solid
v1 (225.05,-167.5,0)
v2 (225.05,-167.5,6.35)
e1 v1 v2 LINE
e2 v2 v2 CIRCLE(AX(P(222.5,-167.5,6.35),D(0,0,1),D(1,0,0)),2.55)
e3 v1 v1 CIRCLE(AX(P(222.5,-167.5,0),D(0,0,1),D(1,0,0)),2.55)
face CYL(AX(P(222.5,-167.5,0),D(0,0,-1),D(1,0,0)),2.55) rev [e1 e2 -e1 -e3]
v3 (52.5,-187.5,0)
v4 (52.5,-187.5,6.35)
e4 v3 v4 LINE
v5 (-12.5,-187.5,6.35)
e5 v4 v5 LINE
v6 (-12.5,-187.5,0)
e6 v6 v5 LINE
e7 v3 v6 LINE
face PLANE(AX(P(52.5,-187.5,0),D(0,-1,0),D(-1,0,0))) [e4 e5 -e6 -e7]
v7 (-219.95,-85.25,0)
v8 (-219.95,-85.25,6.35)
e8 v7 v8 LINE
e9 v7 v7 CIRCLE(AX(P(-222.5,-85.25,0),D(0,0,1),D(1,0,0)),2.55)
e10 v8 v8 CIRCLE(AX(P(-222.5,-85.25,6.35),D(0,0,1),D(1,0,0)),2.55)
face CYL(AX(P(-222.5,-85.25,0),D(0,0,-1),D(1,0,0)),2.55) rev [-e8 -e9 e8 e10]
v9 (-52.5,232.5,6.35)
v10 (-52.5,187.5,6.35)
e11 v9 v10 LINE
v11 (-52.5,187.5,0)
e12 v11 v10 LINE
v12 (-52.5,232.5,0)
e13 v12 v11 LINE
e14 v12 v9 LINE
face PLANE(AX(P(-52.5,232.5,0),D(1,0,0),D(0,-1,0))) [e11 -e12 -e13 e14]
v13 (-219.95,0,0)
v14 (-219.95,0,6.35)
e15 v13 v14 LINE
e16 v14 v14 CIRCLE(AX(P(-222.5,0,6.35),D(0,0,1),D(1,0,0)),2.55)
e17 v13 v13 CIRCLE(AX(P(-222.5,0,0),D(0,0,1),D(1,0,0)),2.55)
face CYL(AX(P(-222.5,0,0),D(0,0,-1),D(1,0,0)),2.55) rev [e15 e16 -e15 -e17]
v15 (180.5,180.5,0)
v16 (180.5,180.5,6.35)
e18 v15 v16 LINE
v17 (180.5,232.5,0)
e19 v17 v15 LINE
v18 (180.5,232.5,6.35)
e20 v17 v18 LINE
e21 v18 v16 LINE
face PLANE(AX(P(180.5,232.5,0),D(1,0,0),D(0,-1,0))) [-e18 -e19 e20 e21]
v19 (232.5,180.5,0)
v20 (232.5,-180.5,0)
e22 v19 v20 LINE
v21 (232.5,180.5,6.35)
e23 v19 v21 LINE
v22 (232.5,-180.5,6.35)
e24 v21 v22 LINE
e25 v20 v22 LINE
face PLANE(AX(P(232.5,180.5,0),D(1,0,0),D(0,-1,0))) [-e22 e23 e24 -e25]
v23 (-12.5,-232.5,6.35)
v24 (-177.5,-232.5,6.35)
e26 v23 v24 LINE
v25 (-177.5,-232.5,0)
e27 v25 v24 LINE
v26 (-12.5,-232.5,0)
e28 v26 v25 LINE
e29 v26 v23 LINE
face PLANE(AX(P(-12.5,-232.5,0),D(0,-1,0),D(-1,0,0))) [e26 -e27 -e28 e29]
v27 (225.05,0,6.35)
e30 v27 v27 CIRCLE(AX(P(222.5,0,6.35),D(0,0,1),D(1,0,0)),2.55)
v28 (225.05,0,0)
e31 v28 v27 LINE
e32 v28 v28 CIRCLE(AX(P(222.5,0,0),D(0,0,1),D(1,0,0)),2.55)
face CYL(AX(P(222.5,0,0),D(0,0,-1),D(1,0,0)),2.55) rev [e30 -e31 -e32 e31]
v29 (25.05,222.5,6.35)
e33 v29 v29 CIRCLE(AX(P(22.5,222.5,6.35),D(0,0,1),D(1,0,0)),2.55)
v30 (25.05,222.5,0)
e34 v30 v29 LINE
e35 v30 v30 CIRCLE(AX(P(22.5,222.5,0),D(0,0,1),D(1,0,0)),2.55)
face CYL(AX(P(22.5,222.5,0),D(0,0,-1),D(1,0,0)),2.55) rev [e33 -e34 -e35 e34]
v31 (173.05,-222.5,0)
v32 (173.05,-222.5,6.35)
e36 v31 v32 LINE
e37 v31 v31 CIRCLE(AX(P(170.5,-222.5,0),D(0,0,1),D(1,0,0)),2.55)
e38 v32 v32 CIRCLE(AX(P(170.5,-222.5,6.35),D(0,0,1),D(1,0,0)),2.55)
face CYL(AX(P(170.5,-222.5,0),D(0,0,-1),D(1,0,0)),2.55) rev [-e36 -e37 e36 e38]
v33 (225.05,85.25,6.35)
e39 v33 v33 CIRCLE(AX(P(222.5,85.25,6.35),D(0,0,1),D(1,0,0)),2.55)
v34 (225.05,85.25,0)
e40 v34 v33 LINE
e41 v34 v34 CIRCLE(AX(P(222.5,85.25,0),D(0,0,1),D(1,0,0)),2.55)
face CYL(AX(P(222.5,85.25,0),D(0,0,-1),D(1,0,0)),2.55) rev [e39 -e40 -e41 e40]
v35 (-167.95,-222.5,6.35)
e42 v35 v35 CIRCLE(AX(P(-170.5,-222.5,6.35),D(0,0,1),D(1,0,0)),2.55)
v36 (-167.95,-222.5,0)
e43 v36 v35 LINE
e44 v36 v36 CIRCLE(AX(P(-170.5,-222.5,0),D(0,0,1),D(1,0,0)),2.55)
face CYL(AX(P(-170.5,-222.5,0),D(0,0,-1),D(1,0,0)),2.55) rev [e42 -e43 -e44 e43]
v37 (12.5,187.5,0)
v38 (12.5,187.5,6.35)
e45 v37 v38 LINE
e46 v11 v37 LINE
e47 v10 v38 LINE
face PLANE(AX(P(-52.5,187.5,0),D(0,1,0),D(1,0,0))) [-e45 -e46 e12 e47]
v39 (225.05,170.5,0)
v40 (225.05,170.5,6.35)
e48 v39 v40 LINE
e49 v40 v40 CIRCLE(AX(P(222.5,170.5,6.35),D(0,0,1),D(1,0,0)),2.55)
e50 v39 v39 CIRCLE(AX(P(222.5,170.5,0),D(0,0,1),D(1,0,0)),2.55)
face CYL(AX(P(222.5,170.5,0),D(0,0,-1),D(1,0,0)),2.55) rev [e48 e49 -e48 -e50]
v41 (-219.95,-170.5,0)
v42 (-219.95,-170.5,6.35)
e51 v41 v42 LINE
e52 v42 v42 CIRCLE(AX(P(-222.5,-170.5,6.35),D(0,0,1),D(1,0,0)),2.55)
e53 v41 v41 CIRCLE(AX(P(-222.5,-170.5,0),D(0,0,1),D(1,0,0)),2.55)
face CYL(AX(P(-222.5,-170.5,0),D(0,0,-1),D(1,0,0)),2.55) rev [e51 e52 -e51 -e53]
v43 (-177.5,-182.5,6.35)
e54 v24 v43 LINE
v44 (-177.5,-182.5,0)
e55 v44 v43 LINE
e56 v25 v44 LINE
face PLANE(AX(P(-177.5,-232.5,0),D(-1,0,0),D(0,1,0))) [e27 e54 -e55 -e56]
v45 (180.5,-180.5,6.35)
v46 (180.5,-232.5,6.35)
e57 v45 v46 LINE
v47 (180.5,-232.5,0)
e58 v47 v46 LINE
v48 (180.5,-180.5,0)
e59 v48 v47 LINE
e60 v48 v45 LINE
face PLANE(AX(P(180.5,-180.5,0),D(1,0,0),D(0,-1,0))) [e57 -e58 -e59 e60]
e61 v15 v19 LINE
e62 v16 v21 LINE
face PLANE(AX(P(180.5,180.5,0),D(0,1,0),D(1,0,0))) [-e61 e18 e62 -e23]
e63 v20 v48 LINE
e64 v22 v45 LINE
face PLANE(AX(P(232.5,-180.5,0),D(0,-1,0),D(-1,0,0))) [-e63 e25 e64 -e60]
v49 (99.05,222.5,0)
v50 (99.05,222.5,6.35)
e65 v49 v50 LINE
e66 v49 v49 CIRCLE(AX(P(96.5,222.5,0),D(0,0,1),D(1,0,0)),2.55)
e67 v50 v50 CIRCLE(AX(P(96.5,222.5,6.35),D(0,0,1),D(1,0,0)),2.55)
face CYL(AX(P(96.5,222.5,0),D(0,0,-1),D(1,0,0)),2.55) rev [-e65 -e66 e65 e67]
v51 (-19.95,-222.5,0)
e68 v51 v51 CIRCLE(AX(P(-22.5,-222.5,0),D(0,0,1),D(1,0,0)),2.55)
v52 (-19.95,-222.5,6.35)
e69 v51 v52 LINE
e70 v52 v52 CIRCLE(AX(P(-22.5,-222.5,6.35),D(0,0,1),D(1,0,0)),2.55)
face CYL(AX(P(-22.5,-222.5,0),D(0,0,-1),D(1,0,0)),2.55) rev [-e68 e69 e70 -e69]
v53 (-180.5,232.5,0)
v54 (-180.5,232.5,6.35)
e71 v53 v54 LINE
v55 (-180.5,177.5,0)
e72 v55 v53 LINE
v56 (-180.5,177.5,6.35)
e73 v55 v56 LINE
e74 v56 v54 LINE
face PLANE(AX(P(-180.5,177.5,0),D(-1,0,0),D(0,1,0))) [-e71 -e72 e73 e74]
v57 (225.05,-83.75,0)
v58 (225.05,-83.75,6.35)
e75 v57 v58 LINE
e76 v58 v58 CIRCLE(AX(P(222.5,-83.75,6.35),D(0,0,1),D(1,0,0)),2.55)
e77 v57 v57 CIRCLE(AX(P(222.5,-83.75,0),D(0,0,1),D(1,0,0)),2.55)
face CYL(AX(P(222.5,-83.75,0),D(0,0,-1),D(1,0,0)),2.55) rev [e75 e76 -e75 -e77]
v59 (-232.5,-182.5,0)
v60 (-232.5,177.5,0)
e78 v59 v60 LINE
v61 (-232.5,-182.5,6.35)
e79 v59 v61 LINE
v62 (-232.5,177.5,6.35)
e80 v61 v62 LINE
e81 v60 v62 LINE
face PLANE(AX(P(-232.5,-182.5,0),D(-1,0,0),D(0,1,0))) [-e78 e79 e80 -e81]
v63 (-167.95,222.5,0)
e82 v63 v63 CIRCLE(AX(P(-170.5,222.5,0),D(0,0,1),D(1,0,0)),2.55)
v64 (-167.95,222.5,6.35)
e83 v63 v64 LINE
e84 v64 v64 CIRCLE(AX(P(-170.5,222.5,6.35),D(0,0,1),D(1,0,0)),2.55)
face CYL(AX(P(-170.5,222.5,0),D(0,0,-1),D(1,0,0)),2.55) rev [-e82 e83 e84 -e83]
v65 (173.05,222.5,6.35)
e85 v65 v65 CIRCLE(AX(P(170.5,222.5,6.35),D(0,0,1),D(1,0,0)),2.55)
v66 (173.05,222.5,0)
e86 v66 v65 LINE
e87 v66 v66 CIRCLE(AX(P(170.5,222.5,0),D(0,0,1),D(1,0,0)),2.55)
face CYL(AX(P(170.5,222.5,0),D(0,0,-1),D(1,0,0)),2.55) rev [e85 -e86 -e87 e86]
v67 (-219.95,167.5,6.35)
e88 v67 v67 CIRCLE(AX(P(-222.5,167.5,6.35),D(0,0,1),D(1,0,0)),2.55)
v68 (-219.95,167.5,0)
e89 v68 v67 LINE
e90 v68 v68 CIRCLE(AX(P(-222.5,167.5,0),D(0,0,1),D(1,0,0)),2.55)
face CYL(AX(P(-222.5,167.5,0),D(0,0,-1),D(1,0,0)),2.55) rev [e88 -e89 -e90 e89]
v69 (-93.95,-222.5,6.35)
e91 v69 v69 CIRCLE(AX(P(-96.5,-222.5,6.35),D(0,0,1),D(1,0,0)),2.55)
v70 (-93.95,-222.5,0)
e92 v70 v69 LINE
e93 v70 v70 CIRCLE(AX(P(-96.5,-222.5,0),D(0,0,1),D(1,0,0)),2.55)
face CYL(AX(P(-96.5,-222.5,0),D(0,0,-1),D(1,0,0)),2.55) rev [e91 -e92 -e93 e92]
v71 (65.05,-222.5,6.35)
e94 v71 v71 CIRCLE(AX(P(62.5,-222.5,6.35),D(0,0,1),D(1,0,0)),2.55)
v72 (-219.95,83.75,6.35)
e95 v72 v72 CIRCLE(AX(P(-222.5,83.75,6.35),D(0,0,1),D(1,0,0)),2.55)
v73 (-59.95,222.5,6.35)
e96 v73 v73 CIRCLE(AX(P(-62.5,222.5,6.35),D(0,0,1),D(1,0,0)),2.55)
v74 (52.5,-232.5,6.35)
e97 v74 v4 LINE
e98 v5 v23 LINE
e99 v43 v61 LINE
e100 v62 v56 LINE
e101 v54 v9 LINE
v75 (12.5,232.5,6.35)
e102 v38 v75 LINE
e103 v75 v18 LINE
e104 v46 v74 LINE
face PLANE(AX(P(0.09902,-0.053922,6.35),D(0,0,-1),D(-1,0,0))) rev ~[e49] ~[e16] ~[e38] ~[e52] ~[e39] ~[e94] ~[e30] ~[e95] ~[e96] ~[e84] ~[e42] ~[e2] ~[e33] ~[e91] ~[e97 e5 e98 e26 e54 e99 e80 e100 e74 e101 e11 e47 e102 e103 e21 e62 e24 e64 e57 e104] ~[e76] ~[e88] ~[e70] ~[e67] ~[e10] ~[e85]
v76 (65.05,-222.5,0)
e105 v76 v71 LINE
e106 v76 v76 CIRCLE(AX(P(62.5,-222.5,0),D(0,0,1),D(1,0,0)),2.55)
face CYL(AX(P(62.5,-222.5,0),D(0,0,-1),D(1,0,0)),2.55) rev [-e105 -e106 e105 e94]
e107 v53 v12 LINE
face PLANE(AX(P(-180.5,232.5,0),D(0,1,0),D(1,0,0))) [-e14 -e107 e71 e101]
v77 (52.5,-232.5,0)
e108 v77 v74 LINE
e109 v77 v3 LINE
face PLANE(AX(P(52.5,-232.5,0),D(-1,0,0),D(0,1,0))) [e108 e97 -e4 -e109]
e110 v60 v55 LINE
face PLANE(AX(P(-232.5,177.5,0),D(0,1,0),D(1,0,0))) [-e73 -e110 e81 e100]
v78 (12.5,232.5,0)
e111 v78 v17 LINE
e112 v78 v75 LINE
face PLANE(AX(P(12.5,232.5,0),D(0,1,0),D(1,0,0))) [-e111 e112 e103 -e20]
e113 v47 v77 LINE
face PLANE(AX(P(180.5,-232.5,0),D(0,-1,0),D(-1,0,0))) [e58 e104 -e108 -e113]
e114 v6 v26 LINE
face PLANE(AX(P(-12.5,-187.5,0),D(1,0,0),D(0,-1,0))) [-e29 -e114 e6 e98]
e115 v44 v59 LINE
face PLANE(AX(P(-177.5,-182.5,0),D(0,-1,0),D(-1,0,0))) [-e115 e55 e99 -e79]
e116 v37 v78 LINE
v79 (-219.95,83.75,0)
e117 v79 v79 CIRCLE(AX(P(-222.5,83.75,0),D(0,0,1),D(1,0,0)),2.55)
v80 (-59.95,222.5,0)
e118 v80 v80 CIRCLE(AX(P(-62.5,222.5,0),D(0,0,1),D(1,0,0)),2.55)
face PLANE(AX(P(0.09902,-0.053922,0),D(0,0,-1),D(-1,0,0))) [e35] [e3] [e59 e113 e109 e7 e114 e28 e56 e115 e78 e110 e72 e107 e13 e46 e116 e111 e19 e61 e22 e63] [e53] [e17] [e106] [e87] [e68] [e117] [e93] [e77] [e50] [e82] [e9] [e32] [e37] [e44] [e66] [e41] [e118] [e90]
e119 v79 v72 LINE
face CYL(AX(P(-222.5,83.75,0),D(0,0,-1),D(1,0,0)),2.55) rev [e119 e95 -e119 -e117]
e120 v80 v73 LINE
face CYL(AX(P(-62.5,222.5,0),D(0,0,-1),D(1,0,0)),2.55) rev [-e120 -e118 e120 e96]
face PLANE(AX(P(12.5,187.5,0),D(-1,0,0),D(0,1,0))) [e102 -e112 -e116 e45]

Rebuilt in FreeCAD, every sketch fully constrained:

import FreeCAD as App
import Part
import Sketcher

V = App.Vector

doc = App.newDocument("Part")
body = doc.addObject("PartDesign::Body", "Body")

sketch1 = doc.addObject("Sketcher::SketchObject", "Sketch")
body.addObject(sketch1)
sketch1.AttachmentSupport = (doc.XY_Plane, [""])
sketch1.MapMode = "FlatFace"
sketch1.addGeometry(Part.LineSegment(V(180.5, 232.5, 0), V(12.5, 232.5, 0)), False)
sketch1.addGeometry(Part.LineSegment(V(12.5, 232.5, 0), V(12.5, 187.5, 0)), False)
sketch1.addGeometry(Part.LineSegment(V(12.5, 187.5, 0), V(-52.5, 187.5, 0)), False)
sketch1.addGeometry(Part.LineSegment(V(-52.5, 187.5, 0), V(-52.5, 232.5, 0)), False)
sketch1.addGeometry(Part.LineSegment(V(-52.5, 232.5, 0), V(-180.5, 232.5, 0)), False)
sketch1.addGeometry(Part.LineSegment(V(-180.5, 232.5, 0), V(-180.5, 177.5, 0)), False)
sketch1.addGeometry(Part.LineSegment(V(-180.5, 177.5, 0), V(-232.5, 177.5, 0)), False)
sketch1.addGeometry(Part.LineSegment(V(-232.5, 177.5, 0), V(-232.5, -182.5, 0)), False)
sketch1.addGeometry(Part.LineSegment(V(-232.5, -182.5, 0), V(-177.5, -182.5, 0)), False)
sketch1.addGeometry(Part.LineSegment(V(-177.5, -182.5, 0), V(-177.5, -232.5, 0)), False)
sketch1.addGeometry(Part.LineSegment(V(-177.5, -232.5, 0), V(-12.5, -232.5, 0)), False)
sketch1.addGeometry(Part.LineSegment(V(-12.5, -232.5, 0), V(-12.5, -187.5, 0)), False)
sketch1.addGeometry(Part.LineSegment(V(-12.5, -187.5, 0), V(52.5, -187.5, 0)), False)
sketch1.addGeometry(Part.LineSegment(V(52.5, -187.5, 0), V(52.5, -232.5, 0)), False)
sketch1.addGeometry(Part.LineSegment(V(52.5, -232.5, 0), V(180.5, -232.5, 0)), False)
sketch1.addGeometry(Part.LineSegment(V(180.5, -232.5, 0), V(180.5, -180.5, 0)), False)
sketch1.addGeometry(Part.LineSegment(V(180.5, -180.5, 0), V(232.5, -180.5, 0)), False)
sketch1.addGeometry(Part.LineSegment(V(232.5, -180.5, 0), V(232.5, 180.5, 0)), False)
sketch1.addGeometry(Part.LineSegment(V(232.5, 180.5, 0), V(180.5, 180.5, 0)), False)
sketch1.addGeometry(Part.LineSegment(V(180.5, 180.5, 0), V(180.5, 232.5, 0)), False)
sketch1.addGeometry(Part.Circle(V(170.5, -222.5, 0), V(0, 0, 1), 2.5), False)
sketch1.addGeometry(Part.Circle(V(222.5, -167.5, 0), V(0, 0, 1), 2.5), False)
sketch1.addGeometry(Part.Circle(V(62.5, -222.5, 0), V(0, 0, 1), 2.5), False)
sketch1.addGeometry(Part.Circle(V(222.5, -83.8, 0), V(0, 0, 1), 2.5), False)
sketch1.addGeometry(Part.Circle(V(-22.5, -222.5, 0), V(0, 0, 1), 2.5), False)
sketch1.addGeometry(Part.Circle(V(-96.5, -222.5, 0), V(0, 0, 1), 2.5), False)
sketch1.addGeometry(Part.Circle(V(-170.5, -222.5, 0), V(0, 0, 1), 2.5), False)
sketch1.addGeometry(Part.Circle(V(-222.5, -170.5, 0), V(0, 0, 1), 2.5), False)
sketch1.addGeometry(Part.Circle(V(-222.5, -85.2, 0), V(0, 0, 1), 2.5), False)
sketch1.addGeometry(Part.Circle(V(222.5, 0, 0), V(0, 0, 1), 2.5), False)
sketch1.addGeometry(Part.Circle(V(222.5, 85.2, 0), V(0, 0, 1), 2.5), False)
sketch1.addGeometry(Part.Circle(V(222.5, 170.5, 0), V(0, 0, 1), 2.5), False)
sketch1.addGeometry(Part.Circle(V(170.5, 222.5, 0), V(0, 0, 1), 2.5), False)
sketch1.addGeometry(Part.Circle(V(96.5, 222.5, 0), V(0, 0, 1), 2.5), False)
sketch1.addGeometry(Part.Circle(V(22.5, 222.5, 0), V(0, 0, 1), 2.5), False)
sketch1.addGeometry(Part.Circle(V(-222.5, 0, 0), V(0, 0, 1), 2.5), False)
sketch1.addGeometry(Part.Circle(V(-222.5, 83.8, 0), V(0, 0, 1), 2.5), False)
sketch1.addGeometry(Part.Circle(V(-62.5, 222.5, 0), V(0, 0, 1), 2.5), False)
sketch1.addGeometry(Part.Circle(V(-222.5, 167.5, 0), V(0, 0, 1), 2.5), False)
sketch1.addGeometry(Part.Circle(V(-170.5, 222.5, 0), V(0, 0, 1), 2.5), False)
sketch1.addConstraint(Sketcher.Constraint("Coincident", 0, 2, 1, 1))
sketch1.addConstraint(Sketcher.Constraint("Coincident", 1, 2, 2, 1))
sketch1.addConstraint(Sketcher.Constraint("Coincident", 2, 2, 3, 1))
sketch1.addConstraint(Sketcher.Constraint("Coincident", 3, 2, 4, 1))
sketch1.addConstraint(Sketcher.Constraint("Coincident", 4, 2, 5, 1))
sketch1.addConstraint(Sketcher.Constraint("Coincident", 5, 2, 6, 1))
sketch1.addConstraint(Sketcher.Constraint("Coincident", 6, 2, 7, 1))
sketch1.addConstraint(Sketcher.Constraint("Coincident", 7, 2, 8, 1))
sketch1.addConstraint(Sketcher.Constraint("Coincident", 8, 2, 9, 1))
sketch1.addConstraint(Sketcher.Constraint("Coincident", 9, 2, 10, 1))
sketch1.addConstraint(Sketcher.Constraint("Coincident", 10, 2, 11, 1))
sketch1.addConstraint(Sketcher.Constraint("Coincident", 11, 2, 12, 1))
sketch1.addConstraint(Sketcher.Constraint("Coincident", 12, 2, 13, 1))
sketch1.addConstraint(Sketcher.Constraint("Coincident", 13, 2, 14, 1))
sketch1.addConstraint(Sketcher.Constraint("Coincident", 14, 2, 15, 1))
sketch1.addConstraint(Sketcher.Constraint("Coincident", 15, 2, 16, 1))
sketch1.addConstraint(Sketcher.Constraint("Coincident", 16, 2, 17, 1))
sketch1.addConstraint(Sketcher.Constraint("Coincident", 17, 2, 18, 1))
sketch1.addConstraint(Sketcher.Constraint("Coincident", 18, 2, 19, 1))
sketch1.addConstraint(Sketcher.Constraint("Coincident", 19, 2, 0, 1))
sketch1.addConstraint(Sketcher.Constraint("Horizontal", 0))
sketch1.addConstraint(Sketcher.Constraint("Vertical", 1))
sketch1.addConstraint(Sketcher.Constraint("Horizontal", 2))
sketch1.addConstraint(Sketcher.Constraint("Vertical", 3))
sketch1.addConstraint(Sketcher.Constraint("Horizontal", 4))
sketch1.addConstraint(Sketcher.Constraint("Vertical", 5))
sketch1.addConstraint(Sketcher.Constraint("Horizontal", 6))
sketch1.addConstraint(Sketcher.Constraint("Vertical", 7))
sketch1.addConstraint(Sketcher.Constraint("Horizontal", 8))
sketch1.addConstraint(Sketcher.Constraint("Vertical", 9))
sketch1.addConstraint(Sketcher.Constraint("Horizontal", 10))
sketch1.addConstraint(Sketcher.Constraint("Vertical", 11))
sketch1.addConstraint(Sketcher.Constraint("Horizontal", 12))
sketch1.addConstraint(Sketcher.Constraint("Vertical", 13))
sketch1.addConstraint(Sketcher.Constraint("Horizontal", 14))
sketch1.addConstraint(Sketcher.Constraint("Vertical", 15))
sketch1.addConstraint(Sketcher.Constraint("Horizontal", 16))
sketch1.addConstraint(Sketcher.Constraint("Vertical", 17))
sketch1.addConstraint(Sketcher.Constraint("Horizontal", 18))
sketch1.addConstraint(Sketcher.Constraint("Vertical", 19))
sketch1.addConstraint(Sketcher.Constraint("Equal", 20, 21))
sketch1.addConstraint(Sketcher.Constraint("Equal", 21, 22))
sketch1.addConstraint(Sketcher.Constraint("Equal", 22, 23))
sketch1.addConstraint(Sketcher.Constraint("Equal", 23, 24))
sketch1.addConstraint(Sketcher.Constraint("Equal", 24, 25))
sketch1.addConstraint(Sketcher.Constraint("Equal", 25, 26))
sketch1.addConstraint(Sketcher.Constraint("Equal", 26, 27))
sketch1.addConstraint(Sketcher.Constraint("Equal", 27, 28))
sketch1.addConstraint(Sketcher.Constraint("Equal", 28, 29))
sketch1.addConstraint(Sketcher.Constraint("Equal", 29, 30))
sketch1.addConstraint(Sketcher.Constraint("Equal", 30, 31))
sketch1.addConstraint(Sketcher.Constraint("Equal", 31, 32))
sketch1.addConstraint(Sketcher.Constraint("Equal", 32, 33))
sketch1.addConstraint(Sketcher.Constraint("Equal", 33, 34))
sketch1.addConstraint(Sketcher.Constraint("Equal", 34, 35))
sketch1.addConstraint(Sketcher.Constraint("Equal", 35, 36))
sketch1.addConstraint(Sketcher.Constraint("Equal", 36, 37))
sketch1.addConstraint(Sketcher.Constraint("Equal", 37, 38))
sketch1.addConstraint(Sketcher.Constraint("Equal", 38, 39))
sketch1.addConstraint(Sketcher.Constraint("Symmetric", 28, 3, 30, 3, -1, 1))
sketch1.addConstraint(Sketcher.Constraint("Symmetric", 27, 3, 31, 3, -1, 1))
sketch1.addConstraint(Sketcher.Constraint("Symmetric", 26, 3, 32, 3, -1, 1))
sketch1.addConstraint(Sketcher.Constraint("Symmetric", 25, 3, 33, 3, -1, 1))
sketch1.addConstraint(Sketcher.Constraint("Symmetric", 24, 3, 34, 3, -1, 1))
sketch1.addConstraint(Sketcher.Constraint("Symmetric", 29, 3, 35, 3, -1, 1))
sketch1.addConstraint(Sketcher.Constraint("Symmetric", 23, 3, 36, 3, -1, 1))
sketch1.addConstraint(Sketcher.Constraint("Symmetric", 22, 3, 37, 3, -1, 1))
sketch1.addConstraint(Sketcher.Constraint("Symmetric", 21, 3, 38, 3, -1, 1))
sketch1.addConstraint(Sketcher.Constraint("Symmetric", 20, 3, 39, 3, -1, 1))
sketch1.addConstraint(Sketcher.Constraint("Symmetric", 0, 2, 10, 2, -1, 1))
sketch1.addConstraint(Sketcher.Constraint("Symmetric", 2, 2, 12, 2, -1, 1))
sketch1.addConstraint(Sketcher.Constraint("Symmetric", 4, 2, 14, 2, -1, 1))
sketch1.addConstraint(Sketcher.Constraint("Symmetric", 20, 3, 26, 3, -2))
sketch1.addConstraint(Sketcher.Constraint("Symmetric", 4, 2, 19, 2, -2))
sketch1.addConstraint(Sketcher.Constraint("PointOnObject", 29, 3, -1))
sketch1.addConstraint(Sketcher.Constraint("Horizontal", 20, 3, 22, 3))
sketch1.addConstraint(Sketcher.Constraint("Horizontal", 22, 3, 24, 3))
sketch1.addConstraint(Sketcher.Constraint("Horizontal", 24, 3, 25, 3))
sketch1.addConstraint(Sketcher.Constraint("Vertical", 21, 3, 23, 3))
sketch1.addConstraint(Sketcher.Constraint("Vertical", 27, 3, 28, 3))
sketch1.addConstraint(Sketcher.Constraint("Vertical", 23, 3, 29, 3))
sketch1.addConstraint(Sketcher.Constraint("Vertical", 29, 3, 30, 3))
sketch1.addConstraint(Sketcher.Constraint("Equal", 6, 16))
sketch1.addConstraint(Sketcher.Constraint("Equal", 8, 5))
sketch1.addConstraint(Sketcher.Constraint("Equal", 18, 15))
sketch1.addConstraint(Sketcher.Constraint("Equal", 15, 19))
sketch1.addConstraint(Sketcher.Constraint("Diameter", 20, 5.1))
sketch1.addConstraint(Sketcher.Constraint("DistanceX", 0, 2, 0, 1, 168.0))
sketch1.addConstraint(Sketcher.Constraint("DistanceX", 2, 2, 2, 1, 65.0))
sketch1.addConstraint(Sketcher.Constraint("DistanceX", 4, 2, 4, 1, 128.0))
sketch1.addConstraint(Sketcher.Constraint("DistanceX", 6, 2, 6, 1, 52.0))
sketch1.addConstraint(Sketcher.Constraint("DistanceX", 8, 1, 8, 2, 55.0))
sketch1.addConstraint(Sketcher.Constraint("DistanceY", 1, 2, 1, 1, 45.0))
sketch1.addConstraint(Sketcher.Constraint("DistanceY", 7, 2, 7, 1, 360.0))
sketch1.addConstraint(Sketcher.Constraint("DistanceY", 9, 2, 9, 1, 50.0))
sketch1.addConstraint(Sketcher.Constraint("DistanceX", 20, 3, 21, 3, 52.0))
sketch1.addConstraint(Sketcher.Constraint("DistanceY", 20, 3, 21, 3, 55.0))
sketch1.addConstraint(Sketcher.Constraint("DistanceX", 22, 3, 20, 3, 108.0))
sketch1.addConstraint(Sketcher.Constraint("DistanceX", 24, 3, 22, 3, 85.0))
sketch1.addConstraint(Sketcher.Constraint("DistanceX", 25, 3, 24, 3, 74.0))
sketch1.addConstraint(Sketcher.Constraint("DistanceX", 26, 3, 25, 3, 74.0))
sketch1.addConstraint(Sketcher.Constraint("DistanceY", 26, 3, 27, 3, 52.0))
sketch1.addConstraint(Sketcher.Constraint("DistanceY", 23, 3, 30, 3, 169.0))
sketch1.addConstraint(Sketcher.Constraint("DistanceY", 21, 3, 31, 3, 338.0))
sketch1.addConstraint(Sketcher.Constraint("DistanceY", 23, 3, -1, 1, 83.75))
pad1 = doc.addObject("PartDesign::Pad", "Pad")
body.addObject(pad1)
pad1.Profile = sketch1
pad1.Length = 6.35

doc.recompute()
